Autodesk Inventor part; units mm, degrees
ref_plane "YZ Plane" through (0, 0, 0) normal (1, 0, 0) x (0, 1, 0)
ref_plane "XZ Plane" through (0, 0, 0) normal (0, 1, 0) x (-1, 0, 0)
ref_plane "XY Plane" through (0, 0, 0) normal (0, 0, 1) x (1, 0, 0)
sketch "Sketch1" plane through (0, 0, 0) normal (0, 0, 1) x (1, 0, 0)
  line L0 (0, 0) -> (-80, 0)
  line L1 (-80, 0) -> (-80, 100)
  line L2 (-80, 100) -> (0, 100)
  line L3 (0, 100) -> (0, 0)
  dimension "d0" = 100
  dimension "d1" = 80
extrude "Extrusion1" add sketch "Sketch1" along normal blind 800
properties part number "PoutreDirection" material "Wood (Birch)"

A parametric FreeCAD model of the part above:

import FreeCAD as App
import Part
import Sketcher

V = App.Vector
Q = App.Units.Quantity

doc = App.newDocument("Part")
body = doc.addObject("PartDesign::Body", "Body")

# Sketch on XY plane
sketch1 = body.newObject("Sketcher::SketchObject", "Sketch")
sketch1.AttachmentSupport = (doc.getObject("XY_Plane"), [""])
sketch1.MapMode = "FlatFace"
sketch1.addGeometry([
    Part.LineSegment(V(-80, 0, 0), V(0, 0, 0)),
    Part.LineSegment(V(0, 0, 0), V(0, 100, 0)),
    Part.LineSegment(V(0, 100, 0), V(-80, 100, 0)),
    Part.LineSegment(V(-80, 100, 0), V(-80, 0, 0)),
], False)
sketch1.addConstraint([
    Sketcher.Constraint("Coincident", 0, 2, 1, 1),
    Sketcher.Constraint("Coincident", 1, 2, 2, 1),
    Sketcher.Constraint("Coincident", 2, 2, 3, 1),
    Sketcher.Constraint("Coincident", 3, 2, 0, 1),
    Sketcher.Constraint("Horizontal", 0),
    Sketcher.Constraint("Vertical", 1),
    Sketcher.Constraint("Horizontal", 2),
    Sketcher.Constraint("Vertical", 3),
    Sketcher.Constraint("Coincident", 0, 2, -1, 1),
    Sketcher.Constraint("DistanceX", 0, 1, 0, 2, Q("80 mm")),
    Sketcher.Constraint("DistanceY", 1, 1, 1, 2, Q("100 mm")),
])
pad1 = body.newObject("PartDesign::Pad", "Pad")
pad1.Profile = sketch1
pad1.Length = 800

doc.recompute()
